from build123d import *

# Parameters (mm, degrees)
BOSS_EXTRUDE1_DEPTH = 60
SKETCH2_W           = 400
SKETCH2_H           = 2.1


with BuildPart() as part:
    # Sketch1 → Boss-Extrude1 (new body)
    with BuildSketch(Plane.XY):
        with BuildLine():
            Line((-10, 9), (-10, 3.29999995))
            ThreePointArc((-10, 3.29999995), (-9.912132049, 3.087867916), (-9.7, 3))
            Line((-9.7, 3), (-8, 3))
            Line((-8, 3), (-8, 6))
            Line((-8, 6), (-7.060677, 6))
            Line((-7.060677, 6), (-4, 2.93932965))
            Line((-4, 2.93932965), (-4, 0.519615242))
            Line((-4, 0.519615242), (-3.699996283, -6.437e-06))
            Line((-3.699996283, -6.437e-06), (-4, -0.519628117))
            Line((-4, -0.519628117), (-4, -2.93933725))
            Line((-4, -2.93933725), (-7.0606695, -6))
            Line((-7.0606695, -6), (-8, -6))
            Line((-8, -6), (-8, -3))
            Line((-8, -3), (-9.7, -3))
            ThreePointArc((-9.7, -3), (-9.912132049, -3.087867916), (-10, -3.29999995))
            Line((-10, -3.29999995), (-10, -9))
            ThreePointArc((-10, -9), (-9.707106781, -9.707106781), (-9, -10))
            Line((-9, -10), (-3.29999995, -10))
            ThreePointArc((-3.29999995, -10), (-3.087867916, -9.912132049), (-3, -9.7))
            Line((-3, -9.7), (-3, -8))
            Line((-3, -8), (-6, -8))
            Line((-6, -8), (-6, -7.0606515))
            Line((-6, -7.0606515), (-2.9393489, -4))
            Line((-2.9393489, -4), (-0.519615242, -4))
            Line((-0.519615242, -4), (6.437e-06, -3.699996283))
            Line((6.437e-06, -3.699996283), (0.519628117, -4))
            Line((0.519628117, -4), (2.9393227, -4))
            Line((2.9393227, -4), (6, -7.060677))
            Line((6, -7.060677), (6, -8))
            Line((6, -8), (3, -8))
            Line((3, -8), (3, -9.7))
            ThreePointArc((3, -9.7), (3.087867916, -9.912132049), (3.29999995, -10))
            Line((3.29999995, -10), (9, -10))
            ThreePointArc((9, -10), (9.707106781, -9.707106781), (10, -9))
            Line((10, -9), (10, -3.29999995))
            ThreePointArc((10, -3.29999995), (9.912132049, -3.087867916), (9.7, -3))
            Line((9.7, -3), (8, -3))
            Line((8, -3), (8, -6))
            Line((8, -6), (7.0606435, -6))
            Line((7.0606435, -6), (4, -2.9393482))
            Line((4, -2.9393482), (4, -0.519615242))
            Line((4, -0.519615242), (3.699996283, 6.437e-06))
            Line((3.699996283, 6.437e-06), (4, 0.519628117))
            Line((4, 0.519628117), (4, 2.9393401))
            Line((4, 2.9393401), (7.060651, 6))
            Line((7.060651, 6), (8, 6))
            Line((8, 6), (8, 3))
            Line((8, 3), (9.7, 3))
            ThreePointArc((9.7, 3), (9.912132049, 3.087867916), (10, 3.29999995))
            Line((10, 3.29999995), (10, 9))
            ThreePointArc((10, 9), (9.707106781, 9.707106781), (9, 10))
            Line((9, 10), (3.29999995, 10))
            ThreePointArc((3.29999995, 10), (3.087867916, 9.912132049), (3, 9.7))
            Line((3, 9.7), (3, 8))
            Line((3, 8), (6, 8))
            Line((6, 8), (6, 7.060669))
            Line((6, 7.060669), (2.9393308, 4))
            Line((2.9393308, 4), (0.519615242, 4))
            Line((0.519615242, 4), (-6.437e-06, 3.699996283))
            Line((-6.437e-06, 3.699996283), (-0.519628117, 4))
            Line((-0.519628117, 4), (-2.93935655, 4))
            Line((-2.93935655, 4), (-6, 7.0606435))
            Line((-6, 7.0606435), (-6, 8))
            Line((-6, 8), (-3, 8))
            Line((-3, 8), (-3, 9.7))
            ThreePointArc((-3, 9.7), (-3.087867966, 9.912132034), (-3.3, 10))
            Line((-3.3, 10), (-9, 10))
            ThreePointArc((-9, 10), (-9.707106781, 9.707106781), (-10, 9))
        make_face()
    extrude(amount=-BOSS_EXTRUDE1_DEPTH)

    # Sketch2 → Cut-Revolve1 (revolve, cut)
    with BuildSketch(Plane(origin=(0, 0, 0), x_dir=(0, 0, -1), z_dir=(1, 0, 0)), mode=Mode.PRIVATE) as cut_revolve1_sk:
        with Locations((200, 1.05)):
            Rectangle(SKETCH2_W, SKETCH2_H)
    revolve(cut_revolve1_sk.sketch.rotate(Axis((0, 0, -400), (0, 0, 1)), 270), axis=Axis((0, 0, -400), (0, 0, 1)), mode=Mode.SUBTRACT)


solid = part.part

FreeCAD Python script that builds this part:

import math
import FreeCAD as App
import Part
import Sketcher
from FreeCAD import Vector
Q = App.Units.Quantity


def add_polygon(sketch, points):
    """Adds a closed chain of lines whose ends are joined by coincident constraints."""
    first, n = sketch.GeometryCount, len(points)
    for a, b in zip(points, points[1:] + points[:1]):
        sketch.addGeometry(Part.LineSegment(App.Vector(*a, 0), App.Vector(*b, 0)), False)
    for i in range(n):
        sketch.addConstraint(Sketcher.Constraint("Coincident", first + i, 2, first + (i + 1) % n, 1))

doc = App.newDocument("Part")
params = doc.addObject("Spreadsheet::Sheet", "Params")
for row, (alias, value) in enumerate([
    ("sketch1_radius", "1 mm"),
    ("sketch1_radius2", "0.3 mm"),
    ("sketch1_width", "3 mm"),
    ("sketch1_width2", "1.7 mm"),
    ("sketch1_width3", "5.7 mm"),
    ("pad1_length", "60 mm"),
    ("sketch2_height", "400 mm"),
    ("sketch2_width", "2.1 mm"),
    ("groove_angle", "360 deg"),
], start=1):
    params.set(f"A{row}", alias)
    params.set(f"B{row}", "=" + value)
    params.setAlias(f"B{row}", alias)

body = doc.addObject("PartDesign::Body", "Body")

# Sketch on XY plane
sketch1 = doc.addObject("Sketcher::SketchObject", "Sketch")
body.addObject(sketch1)
sketch1.AttachmentSupport = (doc.XY_Plane, [""])
sketch1.MapMode = "FlatFace"
sketch1.addGeometry(Part.LineSegment(Vector(-10, 9, 0), Vector(-10, 3.3, 0)), False)
sketch1.addGeometry(Part.ArcOfCircle(Part.Circle(Vector(-9.7, 3.3, 0), Vector(0, 0, 1), 0.3), math.radians(180), math.radians(270)), False)
sketch1.addGeometry(Part.LineSegment(Vector(-9.7, 3, 0), Vector(-8, 3, 0)), False)
sketch1.addGeometry(Part.LineSegment(Vector(-8, 3, 0), Vector(-8, 6, 0)), False)
sketch1.addGeometry(Part.LineSegment(Vector(-8, 6, 0), Vector(-7.06, 6, 0)), False)
sketch1.addGeometry(Part.LineSegment(Vector(-7.06, 6, 0), Vector(-4, 2.94, 0)), False)
sketch1.addGeometry(Part.LineSegment(Vector(-4, 2.94, 0), Vector(-4, 0.52, 0)), False)
sketch1.addGeometry(Part.LineSegment(Vector(-4, 0.52, 0), Vector(-3.7, 0, 0)), False)
sketch1.addGeometry(Part.LineSegment(Vector(-3.7, 0, 0), Vector(-4, -0.52, 0)), False)
sketch1.addGeometry(Part.LineSegment(Vector(-4, -0.52, 0), Vector(-4, -2.94, 0)), False)
sketch1.addGeometry(Part.LineSegment(Vector(-4, -2.94, 0), Vector(-7.06, -6, 0)), False)
sketch1.addGeometry(Part.LineSegment(Vector(-7.06, -6, 0), Vector(-8, -6, 0)), False)
sketch1.addGeometry(Part.LineSegment(Vector(-8, -6, 0), Vector(-8, -3, 0)), False)
sketch1.addGeometry(Part.LineSegment(Vector(-8, -3, 0), Vector(-9.7, -3, 0)), False)
sketch1.addGeometry(Part.ArcOfCircle(Part.Circle(Vector(-9.7, -3.3, 0), Vector(0, 0, 1), 0.3), math.radians(90), math.radians(180)), False)
sketch1.addGeometry(Part.LineSegment(Vector(-10, -3.3, 0), Vector(-10, -9, 0)), False)
sketch1.addGeometry(Part.ArcOfCircle(Part.Circle(Vector(-9, -9, 0), Vector(0, 0, 1), 1), math.radians(-180), math.radians(-90)), False)
sketch1.addGeometry(Part.LineSegment(Vector(-9, -10, 0), Vector(-3.3, -10, 0)), False)
sketch1.addGeometry(Part.ArcOfCircle(Part.Circle(Vector(-3.3, -9.7, 0), Vector(0, 0, 1), 0.3), math.radians(-90), math.radians(0)), False)
sketch1.addGeometry(Part.LineSegment(Vector(-3, -9.7, 0), Vector(-3, -8, 0)), False)
sketch1.addGeometry(Part.LineSegment(Vector(-3, -8, 0), Vector(-6, -8, 0)), False)
sketch1.addGeometry(Part.LineSegment(Vector(-6, -8, 0), Vector(-6, -7.06, 0)), False)
sketch1.addGeometry(Part.LineSegment(Vector(-6, -7.06, 0), Vector(-2.94, -4, 0)), False)
sketch1.addGeometry(Part.LineSegment(Vector(-2.94, -4, 0), Vector(-0.52, -4, 0)), False)
sketch1.addGeometry(Part.LineSegment(Vector(-0.52, -4, 0), Vector(0, -3.7, 0)), False)
sketch1.addGeometry(Part.LineSegment(Vector(0, -3.7, 0), Vector(0.52, -4, 0)), False)
sketch1.addGeometry(Part.LineSegment(Vector(0.52, -4, 0), Vector(2.94, -4, 0)), False)
sketch1.addGeometry(Part.LineSegment(Vector(2.94, -4, 0), Vector(6, -7.06, 0)), False)
sketch1.addGeometry(Part.LineSegment(Vector(6, -7.06, 0), Vector(6, -8, 0)), False)
sketch1.addGeometry(Part.LineSegment(Vector(6, -8, 0), Vector(3, -8, 0)), False)
sketch1.addGeometry(Part.LineSegment(Vector(3, -8, 0), Vector(3, -9.7, 0)), False)
sketch1.addGeometry(Part.ArcOfCircle(Part.Circle(Vector(3.3, -9.7, 0), Vector(0, 0, 1), 0.3), math.radians(180), math.radians(270)), False)
sketch1.addGeometry(Part.LineSegment(Vector(3.3, -10, 0), Vector(9, -10, 0)), False)
sketch1.addGeometry(Part.ArcOfCircle(Part.Circle(Vector(9, -9, 0), Vector(0, 0, 1), 1), math.radians(-90), math.radians(0)), False)
sketch1.addGeometry(Part.LineSegment(Vector(10, -9, 0), Vector(10, -3.3, 0)), False)
sketch1.addGeometry(Part.ArcOfCircle(Part.Circle(Vector(9.7, -3.3, 0), Vector(0, 0, 1), 0.3), math.radians(0), math.radians(90)), False)
sketch1.addGeometry(Part.LineSegment(Vector(9.7, -3, 0), Vector(8, -3, 0)), False)
sketch1.addGeometry(Part.LineSegment(Vector(8, -3, 0), Vector(8, -6, 0)), False)
sketch1.addGeometry(Part.LineSegment(Vector(8, -6, 0), Vector(7.06, -6, 0)), False)
sketch1.addGeometry(Part.LineSegment(Vector(7.06, -6, 0), Vector(4, -2.94, 0)), False)
sketch1.addGeometry(Part.LineSegment(Vector(4, -2.94, 0), Vector(4, -0.52, 0)), False)
sketch1.addGeometry(Part.LineSegment(Vector(4, -0.52, 0), Vector(3.7, 0, 0)), False)
sketch1.addGeometry(Part.LineSegment(Vector(3.7, 0, 0), Vector(4, 0.52, 0)), False)
sketch1.addGeometry(Part.LineSegment(Vector(4, 0.52, 0), Vector(4, 2.94, 0)), False)
sketch1.addGeometry(Part.LineSegment(Vector(4, 2.94, 0), Vector(7.06, 6, 0)), False)
sketch1.addGeometry(Part.LineSegment(Vector(7.06, 6, 0), Vector(8, 6, 0)), False)
sketch1.addGeometry(Part.LineSegment(Vector(8, 6, 0), Vector(8, 3, 0)), False)
sketch1.addGeometry(Part.LineSegment(Vector(8, 3, 0), Vector(9.7, 3, 0)), False)
sketch1.addGeometry(Part.ArcOfCircle(Part.Circle(Vector(9.7, 3.3, 0), Vector(0, 0, 1), 0.3), math.radians(-90), math.radians(0)), False)
sketch1.addGeometry(Part.LineSegment(Vector(10, 3.3, 0), Vector(10, 9, 0)), False)
sketch1.addGeometry(Part.ArcOfCircle(Part.Circle(Vector(9, 9, 0), Vector(0, 0, 1), 1), math.radians(0), math.radians(90)), False)
sketch1.addGeometry(Part.LineSegment(Vector(9, 10, 0), Vector(3.3, 10, 0)), False)
sketch1.addGeometry(Part.ArcOfCircle(Part.Circle(Vector(3.3, 9.7, 0), Vector(0, 0, 1), 0.3), math.radians(90), math.radians(180)), False)
sketch1.addGeometry(Part.LineSegment(Vector(3, 9.7, 0), Vector(3, 8, 0)), False)
sketch1.addGeometry(Part.LineSegment(Vector(3, 8, 0), Vector(6, 8, 0)), False)
sketch1.addGeometry(Part.LineSegment(Vector(6, 8, 0), Vector(6, 7.06, 0)), False)
sketch1.addGeometry(Part.LineSegment(Vector(6, 7.06, 0), Vector(2.94, 4, 0)), False)
sketch1.addGeometry(Part.LineSegment(Vector(2.94, 4, 0), Vector(0.52, 4, 0)), False)
sketch1.addGeometry(Part.LineSegment(Vector(0.52, 4, 0), Vector(0, 3.7, 0)), False)
sketch1.addGeometry(Part.LineSegment(Vector(0, 3.7, 0), Vector(-0.52, 4, 0)), False)
sketch1.addGeometry(Part.LineSegment(Vector(-0.52, 4, 0), Vector(-2.94, 4, 0)), False)
sketch1.addGeometry(Part.LineSegment(Vector(-2.94, 4, 0), Vector(-6, 7.06, 0)), False)
sketch1.addGeometry(Part.LineSegment(Vector(-6, 7.06, 0), Vector(-6, 8, 0)), False)
sketch1.addGeometry(Part.LineSegment(Vector(-6, 8, 0), Vector(-3, 8, 0)), False)
sketch1.addGeometry(Part.LineSegment(Vector(-3, 8, 0), Vector(-3, 9.7, 0)), False)
sketch1.addGeometry(Part.ArcOfCircle(Part.Circle(Vector(-3.3, 9.7, 0), Vector(0, 0, 1), 0.3), math.radians(0), math.radians(90)), False)
sketch1.addGeometry(Part.LineSegment(Vector(-3.3, 10, 0), Vector(-9, 10, 0)), False)
sketch1.addGeometry(Part.ArcOfCircle(Part.Circle(Vector(-9, 9, 0), Vector(0, 0, 1), 1), math.radians(90), math.radians(180)), False)
sketch1.addConstraint(Sketcher.Constraint("Tangent", 0, 2, 1, 1))
sketch1.addConstraint(Sketcher.Constraint("Tangent", 1, 2, 2, 1))
sketch1.addConstraint(Sketcher.Constraint("Coincident", 2, 2, 3, 1))
sketch1.addConstraint(Sketcher.Constraint("Coincident", 3, 2, 4, 1))
sketch1.addConstraint(Sketcher.Constraint("Coincident", 4, 2, 5, 1))
sketch1.addConstraint(Sketcher.Constraint("Coincident", 5, 2, 6, 1))
sketch1.addConstraint(Sketcher.Constraint("Coincident", 6, 2, 7, 1))
sketch1.addConstraint(Sketcher.Constraint("Coincident", 7, 2, 8, 1))
sketch1.addConstraint(Sketcher.Constraint("Coincident", 8, 2, 9, 1))
sketch1.addConstraint(Sketcher.Constraint("Coincident", 9, 2, 10, 1))
sketch1.addConstraint(Sketcher.Constraint("Coincident", 10, 2, 11, 1))
sketch1.addConstraint(Sketcher.Constraint("Coincident", 11, 2, 12, 1))
sketch1.addConstraint(Sketcher.Constraint("Coincident", 12, 2, 13, 1))
sketch1.addConstraint(Sketcher.Constraint("Tangent", 13, 2, 14, 1))
sketch1.addConstraint(Sketcher.Constraint("Tangent", 14, 2, 15, 1))
sketch1.addConstraint(Sketcher.Constraint("Tangent", 15, 2, 16, 1))
sketch1.addConstraint(Sketcher.Constraint("Tangent", 16, 2, 17, 1))
sketch1.addConstraint(Sketcher.Constraint("Tangent", 17, 2, 18, 1))
sketch1.addConstraint(Sketcher.Constraint("Tangent", 18, 2, 19, 1))
sketch1.addConstraint(Sketcher.Constraint("Coincident", 19, 2, 20, 1))
sketch1.addConstraint(Sketcher.Constraint("Coincident", 20, 2, 21, 1))
sketch1.addConstraint(Sketcher.Constraint("Coincident", 21, 2, 22, 1))
sketch1.addConstraint(Sketcher.Constraint("Coincident", 22, 2, 23, 1))
sketch1.addConstraint(Sketcher.Constraint("Coincident", 23, 2, 24, 1))
sketch1.addConstraint(Sketcher.Constraint("Coincident", 24, 2, 25, 1))
sketch1.addConstraint(Sketcher.Constraint("Coincident", 25, 2, 26, 1))
sketch1.addConstraint(Sketcher.Constraint("Coincident", 26, 2, 27, 1))
sketch1.addConstraint(Sketcher.Constraint("Coincident", 27, 2, 28, 1))
sketch1.addConstraint(Sketcher.Constraint("Coincident", 28, 2, 29, 1))
sketch1.addConstraint(Sketcher.Constraint("Coincident", 29, 2, 30, 1))
sketch1.addConstraint(Sketcher.Constraint("Tangent", 30, 2, 31, 1))
sketch1.addConstraint(Sketcher.Constraint("Tangent", 31, 2, 32, 1))
sketch1.addConstraint(Sketcher.Constraint("Tangent", 32, 2, 33, 1))
sketch1.addConstraint(Sketcher.Constraint("Tangent", 33, 2, 34, 1))
sketch1.addConstraint(Sketcher.Constraint("Tangent", 34, 2, 35, 1))
sketch1.addConstraint(Sketcher.Constraint("Tangent", 35, 2, 36, 1))
sketch1.addConstraint(Sketcher.Constraint("Coincident", 36, 2, 37, 1))
sketch1.addConstraint(Sketcher.Constraint("Coincident", 37, 2, 38, 1))
sketch1.addConstraint(Sketcher.Constraint("Coincident", 38, 2, 39, 1))
sketch1.addConstraint(Sketcher.Constraint("Coincident", 39, 2, 40, 1))
sketch1.addConstraint(Sketcher.Constraint("Coincident", 40, 2, 41, 1))
sketch1.addConstraint(Sketcher.Constraint("Coincident", 41, 2, 42, 1))
sketch1.addConstraint(Sketcher.Constraint("Coincident", 42, 2, 43, 1))
sketch1.addConstraint(Sketcher.Constraint("Coincident", 43, 2, 44, 1))
sketch1.addConstraint(Sketcher.Constraint("Coincident", 44, 2, 45, 1))
sketch1.addConstraint(Sketcher.Constraint("Coincident", 45, 2, 46, 1))
sketch1.addConstraint(Sketcher.Constraint("Coincident", 46, 2, 47, 1))
sketch1.addConstraint(Sketcher.Constraint("Tangent", 47, 2, 48, 1))
sketch1.addConstraint(Sketcher.Constraint("Tangent", 48, 2, 49, 1))
sketch1.addConstraint(Sketcher.Constraint("Tangent", 49, 2, 50, 1))
sketch1.addConstraint(Sketcher.Constraint("Tangent", 50, 2, 51, 1))
sketch1.addConstraint(Sketcher.Constraint("Tangent", 51, 2, 52, 1))
sketch1.addConstraint(Sketcher.Constraint("Tangent", 52, 2, 53, 1))
sketch1.addConstraint(Sketcher.Constraint("Coincident", 53, 2, 54, 1))
sketch1.addConstraint(Sketcher.Constraint("Coincident", 54, 2, 55, 1))
sketch1.addConstraint(Sketcher.Constraint("Coincident", 55, 2, 56, 1))
sketch1.addConstraint(Sketcher.Constraint("Coincident", 56, 2, 57, 1))
sketch1.addConstraint(Sketcher.Constraint("Coincident", 57, 2, 58, 1))
sketch1.addConstraint(Sketcher.Constraint("Coincident", 58, 2, 59, 1))
sketch1.addConstraint(Sketcher.Constraint("Coincident", 59, 2, 60, 1))
sketch1.addConstraint(Sketcher.Constraint("Coincident", 60, 2, 61, 1))
sketch1.addConstraint(Sketcher.Constraint("Coincident", 61, 2, 62, 1))
sketch1.addConstraint(Sketcher.Constraint("Coincident", 62, 2, 63, 1))
sketch1.addConstraint(Sketcher.Constraint("Coincident", 63, 2, 64, 1))
sketch1.addConstraint(Sketcher.Constraint("Tangent", 64, 2, 65, 1))
sketch1.addConstraint(Sketcher.Constraint("Tangent", 65, 2, 66, 1))
sketch1.addConstraint(Sketcher.Constraint("Tangent", 66, 2, 67, 1))
sketch1.addConstraint(Sketcher.Constraint("Tangent", 67, 2, 0, 1))
sketch1.addConstraint(Sketcher.Constraint("Vertical", 0))
sketch1.addConstraint(Sketcher.Constraint("Horizontal", 2))
sketch1.addConstraint(Sketcher.Constraint("Vertical", 3))
sketch1.addConstraint(Sketcher.Constraint("Horizontal", 4))
sketch1.addConstraint(Sketcher.Constraint("Vertical", 6))
sketch1.addConstraint(Sketcher.Constraint("Vertical", 9))
sketch1.addConstraint(Sketcher.Constraint("Horizontal", 11))
sketch1.addConstraint(Sketcher.Constraint("Vertical", 12))
sketch1.addConstraint(Sketcher.Constraint("Horizontal", 13))
sketch1.addConstraint(Sketcher.Constraint("Vertical", 15))
sketch1.addConstraint(Sketcher.Constraint("Horizontal", 17))
sketch1.addConstraint(Sketcher.Constraint("Vertical", 19))
sketch1.addConstraint(Sketcher.Constraint("Horizontal", 20))
sketch1.addConstraint(Sketcher.Constraint("Vertical", 21))
sketch1.addConstraint(Sketcher.Constraint("Horizontal", 23))
sketch1.addConstraint(Sketcher.Constraint("Horizontal", 26))
sketch1.addConstraint(Sketcher.Constraint("Vertical", 28))
sketch1.addConstraint(Sketcher.Constraint("Horizontal", 29))
sketch1.addConstraint(Sketcher.Constraint("Vertical", 30))
sketch1.addConstraint(Sketcher.Constraint("Horizontal", 32))
sketch1.addConstraint(Sketcher.Constraint("Vertical", 34))
sketch1.addConstraint(Sketcher.Constraint("Horizontal", 36))
sketch1.addConstraint(Sketcher.Constraint("Vertical", 37))
sketch1.addConstraint(Sketcher.Constraint("Horizontal", 38))
sketch1.addConstraint(Sketcher.Constraint("Vertical", 40))
sketch1.addConstraint(Sketcher.Constraint("Vertical", 43))
sketch1.addConstraint(Sketcher.Constraint("Horizontal", 45))
sketch1.addConstraint(Sketcher.Constraint("Vertical", 46))
sketch1.addConstraint(Sketcher.Constraint("Horizontal", 47))
sketch1.addConstraint(Sketcher.Constraint("Vertical", 49))
sketch1.addConstraint(Sketcher.Constraint("Horizontal", 51))
sketch1.addConstraint(Sketcher.Constraint("Vertical", 53))
sketch1.addConstraint(Sketcher.Constraint("Horizontal", 54))
sketch1.addConstraint(Sketcher.Constraint("Vertical", 55))
sketch1.addConstraint(Sketcher.Constraint("Horizontal", 57))
sketch1.addConstraint(Sketcher.Constraint("Horizontal", 60))
sketch1.addConstraint(Sketcher.Constraint("Vertical", 62))
sketch1.addConstraint(Sketcher.Constraint("Horizontal", 63))
sketch1.addConstraint(Sketcher.Constraint("Vertical", 64))
sketch1.addConstraint(Sketcher.Constraint("Horizontal", 66))
sketch1.addConstraint(Sketcher.Constraint("Equal", 1, 14))
sketch1.addConstraint(Sketcher.Constraint("Equal", 14, 18))
sketch1.addConstraint(Sketcher.Constraint("Equal", 18, 31))
sketch1.addConstraint(Sketcher.Constraint("Equal", 16, 33))
sketch1.addConstraint(Sketcher.Constraint("Equal", 31, 35))
sketch1.addConstraint(Sketcher.Constraint("Equal", 35, 48))
sketch1.addConstraint(Sketcher.Constraint("Equal", 33, 50))
sketch1.addConstraint(Sketcher.Constraint("Equal", 48, 52))
sketch1.addConstraint(Sketcher.Constraint("Equal", 52, 65))
sketch1.addConstraint(Sketcher.Constraint("Equal", 50, 67))
sketch1.addConstraint(Sketcher.Constraint("Symmetric", 1, 3, 35, 3, -1, 1))
sketch1.addConstraint(Sketcher.Constraint("Symmetric", 14, 3, 48, 3, -1, 1))
sketch1.addConstraint(Sketcher.Constraint("Symmetric", 18, 3, 52, 3, -1, 1))
sketch1.addConstraint(Sketcher.Constraint("Symmetric", 31, 3, 65, 3, -1, 1))
sketch1.addConstraint(Sketcher.Constraint("Symmetric", 3, 2, 37, 2, -1, 1))
sketch1.addConstraint(Sketcher.Constraint("Symmetric", 6, 2, 40, 2, -1, 1))
sketch1.addConstraint(Sketcher.Constraint("Symmetric", 7, 2, 41, 2, -1, 1))
sketch1.addConstraint(Sketcher.Constraint("Symmetric", 8, 2, 42, 2, -1, 1))
sketch1.addConstraint(Sketcher.Constraint("Symmetric", 11, 2, 45, 2, -1, 1))
sketch1.addConstraint(Sketcher.Constraint("Symmetric", 20, 2, 54, 2, -1, 1))
sketch1.addConstraint(Sketcher.Constraint("Symmetric", 23, 2, 57, 2, -1, 1))
sketch1.addConstraint(Sketcher.Constraint("Symmetric", 24, 2, 58, 2, -1, 1))
sketch1.addConstraint(Sketcher.Constraint("Symmetric", 25, 2, 59, 2, -1, 1))
sketch1.addConstraint(Sketcher.Constraint("Symmetric", 28, 2, 62, 2, -1, 1))
sketch1.addConstraint(Sketcher.Constraint("Symmetric", 18, 3, 31, 3, -2))
sketch1.addConstraint(Sketcher.Constraint("Symmetric", 14, 3, 35, 3, -2))
sketch1.addConstraint(Sketcher.Constraint("Symmetric", 20, 2, 28, 2, -2))
sketch1.addConstraint(Sketcher.Constraint("Symmetric", 11, 2, 37, 2, -2))
sketch1.addConstraint(Sketcher.Constraint("Symmetric", 5, 2, 9, 2, -1))
sketch1.addConstraint(Sketcher.Constraint("Symmetric", 26, 2, 56, 2, -1))
sketch1.addConstraint(Sketcher.Constraint("Parallel", 10, 22))
sketch1.addConstraint(Sketcher.Constraint("Perpendicular", 7, 24))
sketch1.addConstraint(Sketcher.Constraint("Perpendicular", 8, 25))
sketch1.addConstraint(Sketcher.Constraint("Perpendicular", 22, 27))
sketch1.addConstraint(Sketcher.Constraint("Parallel", 27, 39))
sketch1.addConstraint(Sketcher.Constraint("Perpendicular", 27, 44))
sketch1.addConstraint(Sketcher.Constraint("Parallel", 44, 56))
sketch1.addConstraint(Sketcher.Constraint("Perpendicular", 56, 61))
sketch1.addConstraint(Sketcher.Constraint("Equal", 66, 0))
sketch1.addConstraint(Sketcher.Constraint("Equal", 63, 3))
sketch1.addConstraint(Sketcher.Constraint("Equal", 57, 6))
sketch1.addConstraint(Sketcher.Constraint("Equal", 47, 19))
sketch1.addConstraint(Sketcher.Constraint("Equal", 45, 21))
sketch1.addConstraint(Sketcher.Constraint("Equal", 4, 28))
sketch1.addConstraint(Sketcher.Constraint("Equal", 23, 40))
sketch1.addConstraint(Sketcher.Constraint("Equal", 11, 55))
sketch1.addConstraint(Sketcher.Constraint("Equal", 38, 62))
sketch1.addConstraint(Sketcher.Constraint("Equal", 7, 8))
sketch1.addConstraint(Sketcher.Constraint("Equal", 8, 24))
sketch1.addConstraint(Sketcher.Constraint("Radius", 16, Q("1 mm")))
sketch1.addConstraint(Sketcher.Constraint("Radius", 1, Q("0.3 mm")))
sketch1.addConstraint(Sketcher.Constraint("DistanceX", 20, 2, 20, 1, Q("3 mm")))
sketch1.addConstraint(Sketcher.Constraint("Angle", 7, Q("-60 deg")))
sketch1.addConstraint(Sketcher.Constraint("Angle", 22, Q("45.000004 deg")))
sketch1.addConstraint(Sketcher.Constraint("DistanceX", 2, 1, 2, 2, Q("1.7 mm")))
sketch1.addConstraint(Sketcher.Constraint("DistanceX", 17, 1, 17, 2, Q("5.7 mm")))
sketch1.addConstraint(Sketcher.Constraint("DistanceX", 16, 3, -1, 1, Q("9 mm")))
sketch1.addConstraint(Sketcher.Constraint("DistanceY", 16, 3, -1, 1, Q("9 mm")))
sketch1.addConstraint(Sketcher.Constraint("DistanceX", 5, 2, -1, 1, Q("4 mm")))
sketch1.addConstraint(Sketcher.Constraint("DistanceY", 22, 2, -1, 1, Q("4 mm")))
sketch1.addConstraint(Sketcher.Constraint("DistanceX", 11, 2, 11, 1, Q("0.93933 mm")))
sketch1.addConstraint(Sketcher.Constraint("DistanceX", 45, 1, 45, 2, Q("0.939349 mm")))
sketch1.addConstraint(Sketcher.Constraint("DistanceX", 60, 2, 60, 1, Q("2.419728 mm")))
sketch1.addConstraint(Sketcher.Constraint("DistanceX", 23, 1, 23, 2, Q("2.419734 mm")))
sketch1.setExpression("Constraints[157]", "Params.sketch1_radius")
sketch1.setExpression("Constraints[158]", "Params.sketch1_radius2")
sketch1.setExpression("Constraints[159]", "Params.sketch1_width")
sketch1.setExpression("Constraints[162]", "Params.sketch1_width2")
sketch1.setExpression("Constraints[163]", "Params.sketch1_width3")
pad1 = doc.addObject("PartDesign::Pad", "Pad")
body.addObject(pad1)
pad1.Profile = sketch1
pad1.setExpression("Length", "Params.pad1_length")
pad1.Reversed = True

# Sketch on YZ plane
sketch2 = doc.addObject("Sketcher::SketchObject", "Sketch001")
body.addObject(sketch2)
sketch2.AttachmentSupport = (doc.YZ_Plane, [""])
sketch2.MapMode = "FlatFace"
add_polygon(sketch2, [(2.1, 0), (0, 0), (0, -400), (2.1, -400)])  # lines 0-3
sketch2.addConstraint(Sketcher.Constraint("Horizontal", 0))
sketch2.addConstraint(Sketcher.Constraint("Vertical", 1))
sketch2.addConstraint(Sketcher.Constraint("Horizontal", 2))
sketch2.addConstraint(Sketcher.Constraint("Vertical", 3))
sketch2.addConstraint(Sketcher.Constraint("Coincident", 0, 2, -1, 1))
sketch2.addConstraint(Sketcher.Constraint("DistanceY", 1, 2, 1, 1, Q("400 mm")))
sketch2.addConstraint(Sketcher.Constraint("DistanceX", 0, 2, 0, 1, Q("2.1 mm")))
sketch2.setExpression("Constraints[9]", "Params.sketch2_height")
sketch2.setExpression("Constraints[10]", "Params.sketch2_width")
groove = doc.addObject("PartDesign::Groove", "Groove")
body.addObject(groove)
groove.Profile = sketch2
groove.ReferenceAxis = (sketch2, ["V_Axis"])
groove.setExpression("Angle", "Params.groove_angle")

doc.recompute()
